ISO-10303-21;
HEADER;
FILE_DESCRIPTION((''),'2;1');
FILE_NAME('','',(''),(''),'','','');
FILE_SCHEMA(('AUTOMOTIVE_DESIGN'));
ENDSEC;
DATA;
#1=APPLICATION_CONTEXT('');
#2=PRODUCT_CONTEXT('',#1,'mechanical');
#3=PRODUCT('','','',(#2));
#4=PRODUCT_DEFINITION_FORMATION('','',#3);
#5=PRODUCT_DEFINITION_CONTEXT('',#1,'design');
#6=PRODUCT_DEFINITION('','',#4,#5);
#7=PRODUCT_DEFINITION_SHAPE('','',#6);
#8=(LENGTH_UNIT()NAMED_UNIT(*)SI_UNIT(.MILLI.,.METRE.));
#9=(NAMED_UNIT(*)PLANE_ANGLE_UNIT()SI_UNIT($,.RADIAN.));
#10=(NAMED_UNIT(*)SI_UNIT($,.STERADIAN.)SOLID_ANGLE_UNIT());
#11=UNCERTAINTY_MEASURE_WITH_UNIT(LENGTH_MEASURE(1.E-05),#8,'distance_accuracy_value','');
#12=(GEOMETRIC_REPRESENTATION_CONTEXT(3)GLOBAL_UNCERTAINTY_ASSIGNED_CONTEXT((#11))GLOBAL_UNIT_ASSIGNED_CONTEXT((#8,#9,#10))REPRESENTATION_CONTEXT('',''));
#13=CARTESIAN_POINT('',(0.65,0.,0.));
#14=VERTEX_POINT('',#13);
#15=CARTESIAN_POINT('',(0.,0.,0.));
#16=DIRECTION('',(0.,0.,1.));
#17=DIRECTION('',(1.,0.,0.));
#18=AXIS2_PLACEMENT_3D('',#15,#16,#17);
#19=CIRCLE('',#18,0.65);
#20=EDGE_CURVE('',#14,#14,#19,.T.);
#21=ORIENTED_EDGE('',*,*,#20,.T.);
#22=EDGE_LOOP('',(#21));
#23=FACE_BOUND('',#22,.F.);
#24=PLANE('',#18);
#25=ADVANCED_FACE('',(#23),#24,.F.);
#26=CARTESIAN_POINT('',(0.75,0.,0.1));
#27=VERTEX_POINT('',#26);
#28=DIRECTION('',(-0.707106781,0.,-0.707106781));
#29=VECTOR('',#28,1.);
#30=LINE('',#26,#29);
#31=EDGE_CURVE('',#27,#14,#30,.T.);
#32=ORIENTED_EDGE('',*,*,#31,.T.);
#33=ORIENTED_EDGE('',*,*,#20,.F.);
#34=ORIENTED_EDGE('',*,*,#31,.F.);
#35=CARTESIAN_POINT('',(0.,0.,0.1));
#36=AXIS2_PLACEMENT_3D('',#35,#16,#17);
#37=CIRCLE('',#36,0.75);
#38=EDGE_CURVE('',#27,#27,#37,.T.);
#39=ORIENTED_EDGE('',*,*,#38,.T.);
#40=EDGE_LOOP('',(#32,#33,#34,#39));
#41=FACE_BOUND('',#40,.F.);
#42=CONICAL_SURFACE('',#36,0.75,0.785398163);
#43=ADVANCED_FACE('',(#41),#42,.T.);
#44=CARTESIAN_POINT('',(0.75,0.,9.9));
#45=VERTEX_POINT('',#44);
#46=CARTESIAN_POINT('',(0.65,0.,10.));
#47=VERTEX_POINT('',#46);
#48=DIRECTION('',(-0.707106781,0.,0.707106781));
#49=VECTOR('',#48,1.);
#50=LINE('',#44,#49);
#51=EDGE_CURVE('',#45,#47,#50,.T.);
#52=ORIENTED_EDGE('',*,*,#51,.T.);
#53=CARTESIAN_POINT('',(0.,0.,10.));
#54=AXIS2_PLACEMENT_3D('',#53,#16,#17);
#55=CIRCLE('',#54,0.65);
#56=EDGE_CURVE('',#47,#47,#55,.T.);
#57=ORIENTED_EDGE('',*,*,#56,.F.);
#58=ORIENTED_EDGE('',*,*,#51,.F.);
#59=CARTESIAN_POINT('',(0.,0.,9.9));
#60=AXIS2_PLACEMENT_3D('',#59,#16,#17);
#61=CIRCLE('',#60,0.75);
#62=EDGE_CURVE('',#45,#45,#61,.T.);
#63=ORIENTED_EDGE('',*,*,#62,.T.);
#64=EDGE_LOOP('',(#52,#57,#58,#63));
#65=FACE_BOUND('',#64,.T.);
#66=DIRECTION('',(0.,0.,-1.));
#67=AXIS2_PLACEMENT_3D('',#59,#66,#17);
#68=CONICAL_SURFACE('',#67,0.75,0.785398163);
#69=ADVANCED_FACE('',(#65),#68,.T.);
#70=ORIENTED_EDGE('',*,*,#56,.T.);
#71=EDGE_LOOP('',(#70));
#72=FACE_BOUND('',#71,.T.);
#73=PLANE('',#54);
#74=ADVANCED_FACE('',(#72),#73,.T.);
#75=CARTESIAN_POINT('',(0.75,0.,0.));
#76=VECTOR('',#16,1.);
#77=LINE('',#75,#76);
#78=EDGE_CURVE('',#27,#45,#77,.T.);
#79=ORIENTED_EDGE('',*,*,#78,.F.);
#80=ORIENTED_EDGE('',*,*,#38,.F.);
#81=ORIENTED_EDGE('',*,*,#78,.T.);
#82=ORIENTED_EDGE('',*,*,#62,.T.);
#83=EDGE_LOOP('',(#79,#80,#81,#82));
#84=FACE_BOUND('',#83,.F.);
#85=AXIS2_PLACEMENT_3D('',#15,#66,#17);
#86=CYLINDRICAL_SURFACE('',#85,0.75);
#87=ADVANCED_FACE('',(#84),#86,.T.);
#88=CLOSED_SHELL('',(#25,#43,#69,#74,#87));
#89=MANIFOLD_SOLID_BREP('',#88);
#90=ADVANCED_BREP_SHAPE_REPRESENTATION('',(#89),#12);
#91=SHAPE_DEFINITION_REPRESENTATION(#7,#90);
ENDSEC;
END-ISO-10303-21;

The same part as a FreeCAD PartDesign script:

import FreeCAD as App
import Part
import Sketcher
Q = App.Units.Quantity


def edges_at(feature, points):
    """Names of the edges that pass closest to the given points."""
    edges = feature.Shape.Edges
    near = lambda p: min(range(len(edges)), key=lambda i: edges[i].distToShape(Part.Vertex(*p))[0])
    return sorted({f"Edge{near(p) + 1}" for p in points})

doc = App.newDocument("Part")
body = doc.addObject("PartDesign::Body", "Body")

# Sketch on XY plane
sketch1 = body.newObject("Sketcher::SketchObject", "Sketch")
sketch1.AttachmentSupport = (doc.getObject("XY_Plane"), [""])
sketch1.MapMode = "FlatFace"
sketch1.addGeometry(Part.Circle(App.Vector(0, 0, 0), App.Vector(0, 0, 1), 0.8), False)
sketch1.addConstraint([
    Sketcher.Constraint("Coincident", 0, 3, -1, 1),
    Sketcher.Constraint("Diameter", 0, Q("1.5 mm")),
])
pad1 = body.newObject("PartDesign::Pad", "Pad")
pad1.Profile = sketch1
pad1.Length = 10
doc.recompute()

chamfer = body.newObject("PartDesign::Chamfer", "Chamfer")
chamfer.Base = (pad1, edges_at(pad1, [(-0.75, 0, 10), (-0.75, 0, 0)]))
chamfer.Size = 0.1

doc.recompute()
